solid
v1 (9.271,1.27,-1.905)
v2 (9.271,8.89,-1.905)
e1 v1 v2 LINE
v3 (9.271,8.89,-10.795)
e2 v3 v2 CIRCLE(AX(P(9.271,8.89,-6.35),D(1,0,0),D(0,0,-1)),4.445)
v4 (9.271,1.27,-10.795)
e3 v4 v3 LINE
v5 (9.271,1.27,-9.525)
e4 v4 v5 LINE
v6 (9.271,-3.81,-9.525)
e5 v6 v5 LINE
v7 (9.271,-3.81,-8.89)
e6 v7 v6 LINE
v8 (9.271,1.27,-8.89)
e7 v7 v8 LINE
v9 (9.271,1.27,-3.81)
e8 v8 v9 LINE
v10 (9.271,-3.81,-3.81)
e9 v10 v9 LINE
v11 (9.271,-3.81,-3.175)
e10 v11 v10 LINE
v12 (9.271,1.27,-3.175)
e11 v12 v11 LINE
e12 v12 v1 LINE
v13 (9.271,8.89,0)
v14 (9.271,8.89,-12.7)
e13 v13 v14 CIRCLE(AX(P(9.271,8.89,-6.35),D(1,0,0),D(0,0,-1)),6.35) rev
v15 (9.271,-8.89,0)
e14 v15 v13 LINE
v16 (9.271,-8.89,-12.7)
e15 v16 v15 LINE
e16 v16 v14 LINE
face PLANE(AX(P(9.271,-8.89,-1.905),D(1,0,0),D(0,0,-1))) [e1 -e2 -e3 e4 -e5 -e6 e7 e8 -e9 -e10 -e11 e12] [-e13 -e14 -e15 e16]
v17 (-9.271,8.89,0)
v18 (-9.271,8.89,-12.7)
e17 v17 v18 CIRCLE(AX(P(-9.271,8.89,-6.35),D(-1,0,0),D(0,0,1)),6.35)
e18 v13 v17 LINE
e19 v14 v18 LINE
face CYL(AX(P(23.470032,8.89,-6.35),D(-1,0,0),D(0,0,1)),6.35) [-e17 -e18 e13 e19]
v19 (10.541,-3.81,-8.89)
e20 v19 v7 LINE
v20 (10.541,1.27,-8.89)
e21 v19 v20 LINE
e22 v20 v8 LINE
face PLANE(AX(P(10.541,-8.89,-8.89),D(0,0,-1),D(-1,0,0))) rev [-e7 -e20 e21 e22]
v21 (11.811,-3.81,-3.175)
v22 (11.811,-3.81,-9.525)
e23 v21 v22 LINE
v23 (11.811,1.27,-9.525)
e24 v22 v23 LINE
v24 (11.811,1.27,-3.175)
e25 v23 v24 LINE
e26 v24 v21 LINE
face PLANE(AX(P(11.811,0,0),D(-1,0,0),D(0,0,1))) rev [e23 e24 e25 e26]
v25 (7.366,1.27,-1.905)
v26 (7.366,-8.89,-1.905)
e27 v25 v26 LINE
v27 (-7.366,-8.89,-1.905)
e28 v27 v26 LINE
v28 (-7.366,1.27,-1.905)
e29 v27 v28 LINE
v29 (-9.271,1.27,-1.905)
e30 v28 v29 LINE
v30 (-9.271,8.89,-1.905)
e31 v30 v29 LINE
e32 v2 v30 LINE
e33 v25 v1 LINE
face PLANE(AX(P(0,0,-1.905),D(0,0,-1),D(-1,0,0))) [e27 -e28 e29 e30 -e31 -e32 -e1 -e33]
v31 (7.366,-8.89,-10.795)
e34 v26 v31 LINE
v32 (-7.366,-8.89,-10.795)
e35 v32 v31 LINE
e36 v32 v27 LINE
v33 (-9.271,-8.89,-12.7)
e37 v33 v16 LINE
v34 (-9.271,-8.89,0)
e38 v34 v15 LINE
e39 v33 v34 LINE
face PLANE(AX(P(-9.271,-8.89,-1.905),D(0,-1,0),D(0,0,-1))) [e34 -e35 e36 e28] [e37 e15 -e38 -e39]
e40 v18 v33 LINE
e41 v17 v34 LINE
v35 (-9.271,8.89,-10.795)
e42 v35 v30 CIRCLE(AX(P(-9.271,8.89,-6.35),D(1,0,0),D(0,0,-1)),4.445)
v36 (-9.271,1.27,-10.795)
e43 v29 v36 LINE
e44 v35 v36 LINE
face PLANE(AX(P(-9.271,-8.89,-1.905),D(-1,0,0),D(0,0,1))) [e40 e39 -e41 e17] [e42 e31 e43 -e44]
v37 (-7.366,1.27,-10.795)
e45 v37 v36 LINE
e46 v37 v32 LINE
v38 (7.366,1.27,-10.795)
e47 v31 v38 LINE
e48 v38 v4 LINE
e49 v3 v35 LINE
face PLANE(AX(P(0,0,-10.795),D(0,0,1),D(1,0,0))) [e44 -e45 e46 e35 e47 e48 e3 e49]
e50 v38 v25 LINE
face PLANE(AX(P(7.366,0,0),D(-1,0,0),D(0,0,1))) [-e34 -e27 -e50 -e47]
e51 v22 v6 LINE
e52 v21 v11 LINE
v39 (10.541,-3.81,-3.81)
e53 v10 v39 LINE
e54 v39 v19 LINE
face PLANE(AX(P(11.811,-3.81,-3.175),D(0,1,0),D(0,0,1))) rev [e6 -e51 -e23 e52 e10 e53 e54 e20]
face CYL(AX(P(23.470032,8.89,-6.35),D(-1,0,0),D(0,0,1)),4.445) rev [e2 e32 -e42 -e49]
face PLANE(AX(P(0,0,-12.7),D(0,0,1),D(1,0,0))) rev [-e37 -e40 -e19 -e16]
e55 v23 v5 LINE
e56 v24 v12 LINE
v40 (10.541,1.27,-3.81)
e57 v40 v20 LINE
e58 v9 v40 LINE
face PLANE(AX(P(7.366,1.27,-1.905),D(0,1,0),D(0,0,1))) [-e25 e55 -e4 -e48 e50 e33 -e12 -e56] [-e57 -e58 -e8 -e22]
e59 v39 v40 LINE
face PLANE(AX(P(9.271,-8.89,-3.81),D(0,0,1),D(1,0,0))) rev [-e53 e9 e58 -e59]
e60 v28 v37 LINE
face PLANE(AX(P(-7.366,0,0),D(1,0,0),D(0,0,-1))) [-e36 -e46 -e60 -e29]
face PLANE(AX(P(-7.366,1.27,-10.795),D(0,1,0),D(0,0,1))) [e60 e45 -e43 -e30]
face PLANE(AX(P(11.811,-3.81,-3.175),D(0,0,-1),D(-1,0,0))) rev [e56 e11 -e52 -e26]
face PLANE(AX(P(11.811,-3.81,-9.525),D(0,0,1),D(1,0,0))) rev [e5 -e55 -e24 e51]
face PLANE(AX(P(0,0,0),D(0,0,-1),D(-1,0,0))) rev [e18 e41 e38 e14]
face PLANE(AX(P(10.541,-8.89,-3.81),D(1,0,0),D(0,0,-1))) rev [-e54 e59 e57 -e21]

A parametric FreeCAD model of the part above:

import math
import FreeCAD as App
import Part
import Sketcher
Q = App.Units.Quantity

doc = App.newDocument("Part")
body = doc.addObject("PartDesign::Body", "Body")

# Sketch on XY plane
sketch1 = doc.addObject("Sketcher::SketchObject", "Sketch")
body.addObject(sketch1)
sketch1.AttachmentSupport = (doc.XY_Plane, [""])
sketch1.MapMode = "FlatFace"
sketch1.addGeometry([
    Part.LineSegment(App.Vector(-9.271, 8.89, 0), App.Vector(-9.271, -8.89, 0)),
    Part.LineSegment(App.Vector(-9.271, -8.89, 0), App.Vector(9.271, -8.89, 0)),
    Part.LineSegment(App.Vector(9.271, -8.89, 0), App.Vector(9.271, 8.89, 0)),
    Part.LineSegment(App.Vector(9.271, 8.89, 0), App.Vector(-9.271, 8.89, 0)),
], False)
sketch1.addConstraint([
    Sketcher.Constraint("Coincident", 0, 2, 1, 1),
    Sketcher.Constraint("Coincident", 1, 2, 2, 1),
    Sketcher.Constraint("Coincident", 2, 2, 3, 1),
    Sketcher.Constraint("Coincident", 3, 2, 0, 1),
    Sketcher.Constraint("Vertical", 0),
    Sketcher.Constraint("Horizontal", 1),
    Sketcher.Constraint("Vertical", 2),
    Sketcher.Constraint("Horizontal", 3),
    Sketcher.Constraint("Symmetric", 0, 2, 2, 2, -1, 1),
    Sketcher.Constraint("DistanceY", 0, 2, 0, 1, Q("0.7 in")),
    Sketcher.Constraint("DistanceX", 1, 1, 1, 2, Q("0.73 in")),
])
pad1 = doc.addObject("PartDesign::Pad", "Pad")
body.addObject(pad1)
pad1.Profile = sketch1
pad1.Length = Q("0.075 in")
pad1.Reversed = True
body2 = doc.addObject("PartDesign::Body", "Body001")

# Sketch on XY plane
sketch2 = doc.addObject("Sketcher::SketchObject", "Sketch001")
body2.addObject(sketch2)
sketch2.AttachmentSupport = (doc.getObject("XY_Plane001"), [""])
sketch2.MapMode = "FlatFace"
sketch2.AttachmentOffset = App.Placement(App.Vector(0, 0, -0.5 * 25.4), App.Rotation())
sketch2.addGeometry([
    Part.LineSegment(App.Vector(-9.271, 8.89, 0), App.Vector(-9.271, -8.89, 0)),
    Part.LineSegment(App.Vector(-9.271, -8.89, 0), App.Vector(9.271, -8.89, 0)),
    Part.LineSegment(App.Vector(9.271, -8.89, 0), App.Vector(9.271, 8.89, 0)),
    Part.LineSegment(App.Vector(9.271, 8.89, 0), App.Vector(-9.271, 8.89, 0)),
], False)
sketch2.addConstraint([
    Sketcher.Constraint("Coincident", 0, 2, 1, 1),
    Sketcher.Constraint("Coincident", 1, 2, 2, 1),
    Sketcher.Constraint("Coincident", 2, 2, 3, 1),
    Sketcher.Constraint("Coincident", 3, 2, 0, 1),
    Sketcher.Constraint("Vertical", 0),
    Sketcher.Constraint("Horizontal", 1),
    Sketcher.Constraint("Vertical", 2),
    Sketcher.Constraint("Horizontal", 3),
    Sketcher.Constraint("Symmetric", 0, 2, 2, 2, -1, 1),
    Sketcher.Constraint("DistanceY", 0, 2, 0, 1, Q("0.7 in")),
    Sketcher.Constraint("DistanceX", 1, 1, 1, 2, Q("0.73 in")),
])
pad2 = doc.addObject("PartDesign::Pad", "Pad001")
body2.addObject(pad2)
pad2.Profile = sketch2
pad2.Length = Q("0.075 in")
body.AllowCompound = True
doc.recompute()

boolean = doc.addObject("PartDesign::Boolean", "Boolean")
body.addObject(boolean)
boolean.Type = "Fuse"
boolean.addObjects([body2])

# Sketch on YZ plane
sketch3 = doc.addObject("Sketcher::SketchObject", "Sketch002")
body.addObject(sketch3)
sketch3.AttachmentSupport = (doc.YZ_Plane, [""])
sketch3.MapMode = "FlatFace"
sketch3.AttachmentOffset = App.Placement(App.Vector(0, 0, -0.365 * 25.4), App.Rotation())
sketch3.addGeometry([
    Part.LineSegment(App.Vector(8.89, -12.7, 0), App.Vector(8.89, -10.795, 0)),
    Part.ArcOfCircle(Part.Circle(App.Vector(8.89, -6.35, 0), App.Vector(0, 0, 1), 4.445), math.radians(-90), math.radians(90)),
    Part.LineSegment(App.Vector(8.89, -1.905, 0), App.Vector(8.89, 0, 0)),
    Part.ArcOfCircle(Part.Circle(App.Vector(8.89, -6.35, 0), App.Vector(0, 0, 1), 6.35), math.radians(-90), math.radians(90)),
], False)
sketch3.addConstraint([
    Sketcher.Constraint("Coincident", 0, 2, 1, 1),
    Sketcher.Constraint("Coincident", 1, 2, 2, 1),
    Sketcher.Constraint("Coincident", 2, 2, 3, 2),
    Sketcher.Constraint("Coincident", 3, 1, 0, 1),
    Sketcher.Constraint("Vertical", 0),
    Sketcher.Constraint("Vertical", 2),
    Sketcher.Constraint("Coincident", 3, 3, 1, 3),
    Sketcher.Constraint("PointOnObject", 2, 2, -1),
    Sketcher.Constraint("Vertical", 3, 3, 0, 2),
    Sketcher.Constraint("Vertical", 0, 2, 1, 2),
    Sketcher.Constraint("Radius", 3, Q("0.25 in")),
    Sketcher.Constraint("Radius", 1, Q("0.175 in")),
    Sketcher.Constraint("DistanceX", -1, 1, 1, 3, Q("0.35 in")),
])
pad3 = doc.addObject("PartDesign::Pad", "Pad002")
body.addObject(pad3)
pad3.Profile = sketch3
pad3.Length = Q("0.73 in")

# Sketch on YZ plane
sketch4 = doc.addObject("Sketcher::SketchObject", "Sketch003")
body.addObject(sketch4)
sketch4.AttachmentSupport = (doc.YZ_Plane, [""])
sketch4.MapMode = "FlatFace"
sketch4.AttachmentOffset = App.Placement(App.Vector(0, 0, -0.365 * 25.4), App.Rotation())
sketch4.addGeometry([
    Part.LineSegment(App.Vector(1.27, -10.795, 0), App.Vector(-8.89, -10.795, 0)),
    Part.LineSegment(App.Vector(-8.89, -10.795, 0), App.Vector(-8.89, -1.905, 0)),
    Part.LineSegment(App.Vector(-8.89, -1.905, 0), App.Vector(1.27, -1.905, 0)),
    Part.LineSegment(App.Vector(1.27, -1.905, 0), App.Vector(1.27, -10.795, 0)),
], False)
sketch4.addConstraint([
    Sketcher.Constraint("Coincident", 0, 2, 1, 1),
    Sketcher.Constraint("Coincident", 1, 2, 2, 1),
    Sketcher.Constraint("Coincident", 2, 2, 3, 1),
    Sketcher.Constraint("Coincident", 3, 2, 0, 1),
    Sketcher.Constraint("Horizontal", 0),
    Sketcher.Constraint("Vertical", 1),
    Sketcher.Constraint("Horizontal", 2),
    Sketcher.Constraint("Vertical", 3),
    Sketcher.Constraint("DistanceX", 0, 2, 0, 1, Q("0.4 in")),
    Sketcher.Constraint("DistanceY", 1, 1, 1, 2, Q("0.35 in")),
    Sketcher.Constraint("DistanceX", 0, 2, -1, 1, Q("0.35 in")),
    Sketcher.Constraint("DistanceY", 0, 2, -1, 1, Q("0.425 in")),
])
pad4 = doc.addObject("PartDesign::Pad", "Pad003")
body.addObject(pad4)
pad4.Profile = sketch4
pad4.Length = Q("0.075 in")

# Sketch on YZ plane
sketch5 = doc.addObject("Sketcher::SketchObject", "Sketch004")
body.addObject(sketch5)
sketch5.AttachmentSupport = (doc.YZ_Plane, [""])
sketch5.MapMode = "FlatFace"
sketch5.AttachmentOffset = App.Placement(App.Vector(0, 0, 0.365 * 25.4), App.Rotation())
sketch5.addGeometry([
    Part.LineSegment(App.Vector(1.27, -1.905, 0), App.Vector(-8.89, -1.905, 0)),
    Part.LineSegment(App.Vector(-8.89, -1.905, 0), App.Vector(-8.89, -10.795, 0)),
    Part.LineSegment(App.Vector(-8.89, -10.795, 0), App.Vector(1.27, -10.795, 0)),
    Part.LineSegment(App.Vector(1.27, -10.795, 0), App.Vector(1.27, -1.905, 0)),
], False)
sketch5.addConstraint([
    Sketcher.Constraint("Coincident", 0, 2, 1, 1),
    Sketcher.Constraint("Coincident", 1, 2, 2, 1),
    Sketcher.Constraint("Coincident", 2, 2, 3, 1),
    Sketcher.Constraint("Coincident", 3, 2, 0, 1),
    Sketcher.Constraint("Horizontal", 0),
    Sketcher.Constraint("Vertical", 1),
    Sketcher.Constraint("Horizontal", 2),
    Sketcher.Constraint("Vertical", 3),
    Sketcher.Constraint("DistanceX", 0, 2, 0, 1, Q("0.4 in")),
    Sketcher.Constraint("DistanceY", 1, 2, 1, 1, Q("0.35 in")),
    Sketcher.Constraint("DistanceX", 0, 2, -1, 1, Q("0.35 in")),
    Sketcher.Constraint("DistanceY", 0, 2, -1, 1, Q("0.075 in")),
])
pad5 = doc.addObject("PartDesign::Pad", "Pad004")
body.addObject(pad5)
pad5.Profile = sketch5
pad5.Length = Q("0.075 in")
pad5.Reversed = True

# Sketch on YZ plane
sketch6 = doc.addObject("Sketcher::SketchObject", "Sketch005")
body.addObject(sketch6)
sketch6.AttachmentSupport = (doc.YZ_Plane, [""])
sketch6.MapMode = "FlatFace"
sketch6.AttachmentOffset = App.Placement(App.Vector(0, 0, 0.365 * 25.4), App.Rotation())
sketch6.addGeometry([
    Part.LineSegment(App.Vector(1.27, -3.175, 0), App.Vector(-3.81, -3.175, 0)),
    Part.LineSegment(App.Vector(-3.81, -3.175, 0), App.Vector(-3.81, -9.525, 0)),
    Part.LineSegment(App.Vector(-3.81, -9.525, 0), App.Vector(1.27, -9.525, 0)),
    Part.LineSegment(App.Vector(1.27, -9.525, 0), App.Vector(1.27, -3.175, 0)),
], False)
sketch6.addConstraint([
    Sketcher.Constraint("Coincident", 0, 2, 1, 1),
    Sketcher.Constraint("Coincident", 1, 2, 2, 1),
    Sketcher.Constraint("Coincident", 2, 2, 3, 1),
    Sketcher.Constraint("Coincident", 3, 2, 0, 1),
    Sketcher.Constraint("Horizontal", 0),
    Sketcher.Constraint("Vertical", 1),
    Sketcher.Constraint("Horizontal", 2),
    Sketcher.Constraint("Vertical", 3),
    Sketcher.Constraint("DistanceX", 0, 2, 0, 1, Q("0.2 in")),
    Sketcher.Constraint("DistanceY", 1, 2, 1, 1, Q("0.25 in")),
    Sketcher.Constraint("DistanceX", 0, 2, -1, 1, Q("0.15 in")),
    Sketcher.Constraint("DistanceY", 0, 2, -1, 1, Q("0.125 in")),
])
pad6 = doc.addObject("PartDesign::Pad", "Pad005")
body.addObject(pad6)
pad6.Profile = sketch6
pad6.Length = Q("0.1 in")

# Sketch on XZ plane
sketch7 = doc.addObject("Sketcher::SketchObject", "Sketch006")
body.addObject(sketch7)
sketch7.AttachmentSupport = (doc.XZ_Plane, [""])
sketch7.MapMode = "FlatFace"
sketch7.AttachmentOffset = App.Placement(App.Vector(0, 0, -0.05 * 25.4), App.Rotation())
sketch7.addGeometry([
    Part.LineSegment(App.Vector(9.271, -8.89, 0), App.Vector(9.271, -3.81, 0)),
    Part.LineSegment(App.Vector(9.271, -3.81, 0), App.Vector(10.541, -3.81, 0)),
    Part.LineSegment(App.Vector(10.541, -3.81, 0), App.Vector(10.541, -8.89, 0)),
    Part.LineSegment(App.Vector(10.541, -8.89, 0), App.Vector(9.271, -8.89, 0)),
], False)
sketch7.addConstraint([
    Sketcher.Constraint("Coincident", 0, 2, 1, 1),
    Sketcher.Constraint("Coincident", 1, 2, 2, 1),
    Sketcher.Constraint("Coincident", 2, 2, 3, 1),
    Sketcher.Constraint("Coincident", 3, 2, 0, 1),
    Sketcher.Constraint("Vertical", 0),
    Sketcher.Constraint("Horizontal", 1),
    Sketcher.Constraint("Vertical", 2),
    Sketcher.Constraint("Horizontal", 3),
    Sketcher.Constraint("DistanceY", 0, 1, 0, 2, Q("0.2 in")),
    Sketcher.Constraint("DistanceX", 1, 1, 1, 2, Q("0.05 in")),
    Sketcher.Constraint("DistanceY", 0, 2, -1, 1, Q("0.15 in")),
    Sketcher.Constraint("DistanceX", -1, 1, 0, 2, Q("0.365 in")),
])
pocket1 = doc.addObject("PartDesign::Pocket", "Pocket")
body.addObject(pocket1)
pocket1.Profile = sketch7
pocket1.Type = "ThroughAll"
pocket1.Reversed = True

doc.recompute()
